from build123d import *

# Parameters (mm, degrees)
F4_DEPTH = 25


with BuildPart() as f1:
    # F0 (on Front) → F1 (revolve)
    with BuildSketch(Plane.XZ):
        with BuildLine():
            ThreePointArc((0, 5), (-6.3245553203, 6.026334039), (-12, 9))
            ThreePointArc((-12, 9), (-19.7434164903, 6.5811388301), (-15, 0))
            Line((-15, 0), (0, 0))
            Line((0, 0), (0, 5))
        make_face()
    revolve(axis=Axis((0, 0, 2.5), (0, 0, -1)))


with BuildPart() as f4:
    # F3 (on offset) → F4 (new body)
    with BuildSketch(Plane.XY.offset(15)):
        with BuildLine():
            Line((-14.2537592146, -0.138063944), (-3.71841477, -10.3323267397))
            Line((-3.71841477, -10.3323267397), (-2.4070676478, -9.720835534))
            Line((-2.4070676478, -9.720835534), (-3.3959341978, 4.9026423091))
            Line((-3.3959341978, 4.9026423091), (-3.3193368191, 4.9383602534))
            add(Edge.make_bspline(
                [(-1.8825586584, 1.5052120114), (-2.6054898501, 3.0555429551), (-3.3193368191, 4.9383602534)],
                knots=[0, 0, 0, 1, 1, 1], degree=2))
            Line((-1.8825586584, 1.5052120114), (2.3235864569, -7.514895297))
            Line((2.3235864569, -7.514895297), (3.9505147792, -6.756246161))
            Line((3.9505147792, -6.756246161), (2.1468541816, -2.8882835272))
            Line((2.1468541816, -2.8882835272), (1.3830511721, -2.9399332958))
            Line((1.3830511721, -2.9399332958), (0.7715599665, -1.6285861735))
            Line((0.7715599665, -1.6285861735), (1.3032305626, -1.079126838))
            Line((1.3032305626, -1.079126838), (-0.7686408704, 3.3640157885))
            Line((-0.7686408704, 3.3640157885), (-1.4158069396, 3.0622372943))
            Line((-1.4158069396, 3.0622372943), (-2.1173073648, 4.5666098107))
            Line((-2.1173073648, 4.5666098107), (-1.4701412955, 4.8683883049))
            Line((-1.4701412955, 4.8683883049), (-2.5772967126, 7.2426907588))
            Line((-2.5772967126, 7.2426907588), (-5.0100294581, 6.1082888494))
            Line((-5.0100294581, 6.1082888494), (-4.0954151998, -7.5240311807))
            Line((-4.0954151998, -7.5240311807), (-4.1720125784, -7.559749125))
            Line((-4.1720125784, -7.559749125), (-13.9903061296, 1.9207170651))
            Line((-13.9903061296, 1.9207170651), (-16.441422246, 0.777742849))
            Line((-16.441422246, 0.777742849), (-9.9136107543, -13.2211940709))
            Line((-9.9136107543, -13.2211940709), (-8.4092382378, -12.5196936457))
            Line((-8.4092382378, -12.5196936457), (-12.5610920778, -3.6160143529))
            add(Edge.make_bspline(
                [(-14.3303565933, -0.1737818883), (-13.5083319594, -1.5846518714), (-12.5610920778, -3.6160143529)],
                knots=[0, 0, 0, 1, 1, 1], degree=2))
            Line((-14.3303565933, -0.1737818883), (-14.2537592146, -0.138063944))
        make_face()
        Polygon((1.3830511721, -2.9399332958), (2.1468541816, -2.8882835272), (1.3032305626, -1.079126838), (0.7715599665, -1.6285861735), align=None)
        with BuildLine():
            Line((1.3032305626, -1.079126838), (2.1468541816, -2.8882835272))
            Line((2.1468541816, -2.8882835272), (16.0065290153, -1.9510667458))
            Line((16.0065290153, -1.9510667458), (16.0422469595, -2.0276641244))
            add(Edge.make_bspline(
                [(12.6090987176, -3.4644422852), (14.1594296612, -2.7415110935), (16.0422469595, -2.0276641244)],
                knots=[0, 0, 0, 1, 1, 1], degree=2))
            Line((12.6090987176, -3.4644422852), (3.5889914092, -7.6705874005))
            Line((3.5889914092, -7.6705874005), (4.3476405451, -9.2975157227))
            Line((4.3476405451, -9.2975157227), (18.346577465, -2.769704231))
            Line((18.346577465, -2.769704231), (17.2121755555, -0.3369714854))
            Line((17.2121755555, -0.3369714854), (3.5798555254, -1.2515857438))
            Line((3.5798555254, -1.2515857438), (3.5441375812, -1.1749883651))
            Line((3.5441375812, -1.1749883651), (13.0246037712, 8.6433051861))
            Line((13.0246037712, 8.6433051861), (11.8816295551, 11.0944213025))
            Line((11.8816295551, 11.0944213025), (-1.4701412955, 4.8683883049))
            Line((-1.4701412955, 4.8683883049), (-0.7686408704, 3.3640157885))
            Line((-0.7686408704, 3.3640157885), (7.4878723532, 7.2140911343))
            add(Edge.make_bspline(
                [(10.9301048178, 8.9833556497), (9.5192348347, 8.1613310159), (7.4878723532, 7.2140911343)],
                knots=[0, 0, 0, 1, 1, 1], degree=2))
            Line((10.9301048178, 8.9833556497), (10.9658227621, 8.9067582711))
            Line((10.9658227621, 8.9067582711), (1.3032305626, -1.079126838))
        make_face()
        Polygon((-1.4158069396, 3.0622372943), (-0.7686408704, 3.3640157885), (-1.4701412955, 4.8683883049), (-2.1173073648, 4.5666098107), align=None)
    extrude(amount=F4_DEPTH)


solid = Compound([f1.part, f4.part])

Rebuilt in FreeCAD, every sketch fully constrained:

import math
import FreeCAD as App
import Part
import Sketcher

V = App.Vector
Q = App.Units.Quantity

doc = App.newDocument("Part")
body = doc.addObject("PartDesign::Body", "Body")

# Sketch on XZ plane
sketch1 = doc.addObject("Sketcher::SketchObject", "Sketch")
body.addObject(sketch1)
sketch1.AttachmentSupport = (doc.XZ_Plane, [""])
sketch1.MapMode = "FlatFace"
sketch1.addGeometry([
    Part.ArcOfCircle(Part.Circle(V(0, 25, 0), V(0, 0, 1), 20), math.radians(-127), math.radians(-90)),
    Part.ArcOfCircle(Part.Circle(V(-15, 5, 0), V(0, 0, 1), 5), math.radians(53), math.radians(270)),
    Part.LineSegment(V(-15, 0, 0), V(0, 0, 0)),
    Part.LineSegment(V(0, 0, 0), V(0, 5, 0)),
], False)
sketch1.addConstraint([
    Sketcher.Constraint("Tangent", 0, 1, 1, 1),
    Sketcher.Constraint("Tangent", 1, 2, 2, 1),
    Sketcher.Constraint("Coincident", 2, 2, 3, 1),
    Sketcher.Constraint("Coincident", 3, 2, 0, 2),
    Sketcher.Constraint("Horizontal", 2),
    Sketcher.Constraint("Vertical", 3),
    Sketcher.Constraint("Coincident", 2, 2, -1, 1),
    Sketcher.Constraint("PointOnObject", 0, 3, -2),
    Sketcher.Constraint("Horizontal", 1, 3, 3, 2),
    Sketcher.Constraint("Radius", 0, Q("20 mm")),
    Sketcher.Constraint("Radius", 1, Q("5 mm")),
])
revolution = doc.addObject("PartDesign::Revolution", "Revolution")
body.addObject(revolution)
revolution.Profile = sketch1
revolution.ReferenceAxis = (sketch1, ["V_Axis"])
revolution.Angle = 360
body2 = doc.addObject("PartDesign::Body", "Body001")

# Sketch on XY plane
sketch2 = doc.addObject("Sketcher::SketchObject", "Sketch001")
body2.addObject(sketch2)
sketch2.AttachmentSupport = (doc.getObject("XY_Plane001"), [""])
sketch2.MapMode = "FlatFace"
sketch2.AttachmentOffset = App.Placement(V(0, 0, 15), App.Rotation())
sketch2.addGeometry([
    Part.LineSegment(V(11.88163, 11.094421, 0), V(-1.470141, 4.868388, 0)),  # 0
    Part.LineSegment(V(-1.470141, 4.868388, 0), V(-2.577297, 7.242691, 0)),  # 1
    Part.LineSegment(V(-2.577297, 7.242691, 0), V(-5.010029, 6.108289, 0)),  # 2
    Part.LineSegment(V(-5.010029, 6.108289, 0), V(-4.095415, -7.524031, 0)),  # 3
    Part.LineSegment(V(-4.095415, -7.524031, 0), V(-4.172013, -7.559749, 0)),  # 4
    Part.LineSegment(V(-4.172013, -7.559749, 0), V(-13.990306, 1.920717, 0)),  # 5
    Part.LineSegment(V(-13.990306, 1.920717, 0), V(-16.441422, 0.777743, 0)),  # 6
    Part.LineSegment(V(-16.441422, 0.777743, 0), V(-9.913611, -13.221194, 0)),  # 7
    Part.LineSegment(V(-9.913611, -13.221194, 0), V(-8.409238, -12.519694, 0)),  # 8
    Part.LineSegment(V(-8.409238, -12.519694, 0), V(-12.561092, -3.616014, 0)),  # 9
    Part.BSplineCurve([V(-14.330357, -0.173782, 0), V(-13.508332, -1.584652, 0), V(-12.561092, -3.616014, 0)], [3, 3], [0, 1], False, 2, [1, 1, 1], False),  # 10
    Part.LineSegment(V(-14.330357, -0.173782, 0), V(-14.253759, -0.138064, 0)),  # 11
    Part.LineSegment(V(-14.253759, -0.138064, 0), V(-3.718415, -10.332327, 0)),  # 12
    Part.LineSegment(V(-3.718415, -10.332327, 0), V(-2.407068, -9.720836, 0)),  # 13
    Part.LineSegment(V(-2.407068, -9.720836, 0), V(-3.395934, 4.902642, 0)),  # 14
    Part.LineSegment(V(-3.395934, 4.902642, 0), V(-3.319337, 4.93836, 0)),  # 15
    Part.BSplineCurve([V(-1.882559, 1.505212, 0), V(-2.60549, 3.055543, 0), V(-3.319337, 4.93836, 0)], [3, 3], [0, 1], False, 2, [1, 1, 1], False),  # 16
    Part.LineSegment(V(-1.882559, 1.505212, 0), V(2.323586, -7.514895, 0)),  # 17
    Part.LineSegment(V(2.323586, -7.514895, 0), V(3.950515, -6.756246, 0)),  # 18
    Part.LineSegment(V(3.950515, -6.756246, 0), V(2.146854, -2.888284, 0)),  # 19
    Part.LineSegment(V(2.146854, -2.888284, 0), V(16.006529, -1.951067, 0)),  # 20
    Part.LineSegment(V(16.006529, -1.951067, 0), V(16.042247, -2.027664, 0)),  # 21
    Part.BSplineCurve([V(12.609099, -3.464442, 0), V(14.15943, -2.741511, 0), V(16.042247, -2.027664, 0)], [3, 3], [0, 1], False, 2, [1, 1, 1], False),  # 22
    Part.LineSegment(V(12.609099, -3.464442, 0), V(3.588991, -7.670587, 0)),  # 23
    Part.LineSegment(V(3.588991, -7.670587, 0), V(4.347641, -9.297516, 0)),  # 24
    Part.LineSegment(V(4.347641, -9.297516, 0), V(18.346577, -2.769704, 0)),  # 25
    Part.LineSegment(V(18.346577, -2.769704, 0), V(17.212176, -0.336971, 0)),  # 26
    Part.LineSegment(V(17.212176, -0.336971, 0), V(3.579856, -1.251586, 0)),  # 27
    Part.LineSegment(V(3.579856, -1.251586, 0), V(3.544138, -1.174988, 0)),  # 28
    Part.LineSegment(V(3.544138, -1.174988, 0), V(13.024604, 8.643305, 0)),  # 29
    Part.LineSegment(V(13.024604, 8.643305, 0), V(11.88163, 11.094421, 0)),  # 30
    Part.LineSegment(V(1.303231, -1.079127, 0), V(-0.768641, 3.364016, 0)),  # 31
    Part.LineSegment(V(-0.768641, 3.364016, 0), V(7.487872, 7.214091, 0)),  # 32
    Part.BSplineCurve([V(10.930105, 8.983356, 0), V(9.519235, 8.161331, 0), V(7.487872, 7.214091, 0)], [3, 3], [0, 1], False, 2, [1, 1, 1], False),  # 33
    Part.LineSegment(V(10.930105, 8.983356, 0), V(10.965823, 8.906758, 0)),  # 34
    Part.LineSegment(V(10.965823, 8.906758, 0), V(1.303231, -1.079127, 0)),  # 35
], False)
sketch2.addConstraint([
    Sketcher.Constraint("Block", 10),
    Sketcher.Constraint("Block", 16),
    Sketcher.Constraint("Block", 22),
    Sketcher.Constraint("Block", 33),
    Sketcher.Constraint("Coincident", 0, 2, 1, 1),
    Sketcher.Constraint("Coincident", 1, 2, 2, 1),
    Sketcher.Constraint("Coincident", 2, 2, 3, 1),
    Sketcher.Constraint("Coincident", 3, 2, 4, 1),
    Sketcher.Constraint("Coincident", 4, 2, 5, 1),
    Sketcher.Constraint("Coincident", 5, 2, 6, 1),
    Sketcher.Constraint("Coincident", 6, 2, 7, 1),
    Sketcher.Constraint("Coincident", 7, 2, 8, 1),
    Sketcher.Constraint("Coincident", 8, 2, 9, 1),
    Sketcher.Constraint("Coincident", 9, 2, 10, 2),
    Sketcher.Constraint("Coincident", 10, 1, 11, 1),
    Sketcher.Constraint("Coincident", 11, 2, 12, 1),
    Sketcher.Constraint("Coincident", 12, 2, 13, 1),
    Sketcher.Constraint("Coincident", 13, 2, 14, 1),
    Sketcher.Constraint("Coincident", 14, 2, 15, 1),
    Sketcher.Constraint("Coincident", 15, 2, 16, 2),
    Sketcher.Constraint("Coincident", 16, 1, 17, 1),
    Sketcher.Constraint("Coincident", 17, 2, 18, 1),
    Sketcher.Constraint("Coincident", 18, 2, 19, 1),
    Sketcher.Constraint("Coincident", 19, 2, 20, 1),
    Sketcher.Constraint("Coincident", 20, 2, 21, 1),
    Sketcher.Constraint("Coincident", 21, 2, 22, 2),
    Sketcher.Constraint("Coincident", 22, 1, 23, 1),
    Sketcher.Constraint("Coincident", 23, 2, 24, 1),
    Sketcher.Constraint("Coincident", 24, 2, 25, 1),
    Sketcher.Constraint("Coincident", 25, 2, 26, 1),
    Sketcher.Constraint("Coincident", 26, 2, 27, 1),
    Sketcher.Constraint("Coincident", 27, 2, 28, 1),
    Sketcher.Constraint("Coincident", 28, 2, 29, 1),
    Sketcher.Constraint("Coincident", 29, 2, 30, 1),
    Sketcher.Constraint("Coincident", 30, 2, 0, 1),
    Sketcher.Constraint("Coincident", 31, 2, 32, 1),
    Sketcher.Constraint("Coincident", 32, 2, 33, 2),
    Sketcher.Constraint("Coincident", 33, 1, 34, 1),
    Sketcher.Constraint("Coincident", 34, 2, 35, 1),
    Sketcher.Constraint("Coincident", 35, 2, 31, 1),
    Sketcher.Constraint("DistanceX", 3, 2, 12, 2, Q("0.377 mm")),
    Sketcher.Constraint("DistanceX", 3, 2, 17, 2, Q("6.419002 mm")),
    Sketcher.Constraint("DistanceX", 19, 2, 27, 2, Q("1.433001 mm")),
    Sketcher.Constraint("DistanceY", 23, 2, 27, 2, Q("6.419002 mm")),
    Sketcher.Constraint("DistanceY", 2, 2, 1, 2, Q("1.134402 mm")),
    Sketcher.Constraint("DistanceY", 0, 2, 2, 2, Q("1.239901 mm")),
    Sketcher.Constraint("DistanceX", 7, 2, 4, 2, Q("5.741598 mm")),
    Sketcher.Constraint("DistanceY", 7, 2, 8, 2, Q("0.7015 mm")),
    Sketcher.Constraint("DistanceX", 4, 2, 17, 2, Q("6.495599 mm")),
    Sketcher.Constraint("DistanceY", 8, 2, 17, 2, Q("5.004798 mm")),
    Sketcher.Constraint("DistanceX", 26, 2, 25, 2, Q("1.134402 mm")),
    Sketcher.Constraint("DistanceY", 23, 2, 28, 2, Q("6.495599 mm")),
    Sketcher.Constraint("DistanceX", 30, 2, 20, 2, Q("4.124899 mm")),
    Sketcher.Constraint("DistanceX", 0, 2, 31, 2, Q("0.7015 mm")),
    Sketcher.Constraint("Distance", 0, Q("14.732049 mm")),
    Sketcher.Constraint("Distance", 8, Q("1.659891 mm")),
    Sketcher.Constraint("Distance", 12, Q("14.66003 mm")),
    Sketcher.Constraint("Distance", 13, Q("1.446911 mm")),
    Sketcher.Constraint("DistanceX", 0, 2, -1, 1, Q("1.470141 mm")),
    Sketcher.Constraint("DistanceY", -1, 1, 0, 2, Q("4.868388 mm")),
    Sketcher.Constraint("DistanceX", 2, 2, -1, 1, Q("5.010029 mm")),
    Sketcher.Constraint("DistanceY", 3, 2, -1, 1, Q("7.524031 mm")),
    Sketcher.Constraint("DistanceY", 4, 2, -1, 1, Q("7.559749 mm")),
    Sketcher.Constraint("DistanceX", 7, 2, -1, 1, Q("9.913611 mm")),
    Sketcher.Constraint("DistanceX", 11, 2, -1, 1, Q("14.253759 mm")),
    Sketcher.Constraint("DistanceX", -1, 1, 20, 2, Q("16.006529 mm")),
    Sketcher.Constraint("DistanceX", -1, 1, 23, 2, Q("3.588991 mm")),
    Sketcher.Constraint("DistanceX", -1, 1, 24, 2, Q("4.347641 mm")),
    Sketcher.Constraint("DistanceY", 26, 2, -1, 1, Q("0.336971 mm")),
    Sketcher.Constraint("DistanceY", 28, 2, -1, 1, Q("1.174988 mm")),
    Sketcher.Constraint("DistanceY", -1, 1, 34, 2, Q("8.906758 mm")),
    Sketcher.Constraint("DistanceX", -1, 1, 35, 2, Q("1.303231 mm")),
    Sketcher.Constraint("DistanceX", 3, 2, 1, 2, Q("1.518118 mm")),
    Sketcher.Constraint("DistanceY", 5, 2, 2, 2, Q("4.187572 mm")),
    Sketcher.Constraint("DistanceX", 5, 2, 1, 2, Q("11.413009 mm")),
    Sketcher.Constraint("DistanceX", 6, 2, 4, 2, Q("12.26941 mm")),
    Sketcher.Constraint("DistanceY", 4, 2, 6, 2, Q("8.337492 mm")),
    Sketcher.Constraint("DistanceY", 7, 2, 5, 2, Q("15.141911 mm")),
    Sketcher.Constraint("DistanceY", 11, 2, 5, 2, Q("2.058781 mm")),
    Sketcher.Constraint("DistanceY", 12, 2, 13, 2, Q("0.611491 mm")),
    Sketcher.Constraint("DistanceY", 14, 2, 1, 2, Q("2.340048 mm")),
    Sketcher.Constraint("DistanceX", 5, 2, 14, 2, Q("10.594372 mm")),
    Sketcher.Constraint("DistanceX", 17, 2, 18, 2, Q("1.626928 mm")),
    Sketcher.Constraint("DistanceY", 17, 2, 18, 2, Q("0.758649 mm")),
    Sketcher.Constraint("DistanceX", 19, 2, 18, 2, Q("1.803661 mm")),
    Sketcher.Constraint("DistanceY", 17, 2, 19, 2, Q("4.626612 mm")),
    Sketcher.Constraint("DistanceY", 18, 2, 20, 2, Q("4.805179 mm")),
    Sketcher.Constraint("DistanceY", 24, 2, 23, 2, Q("1.626928 mm")),
    Sketcher.Constraint("DistanceX", 21, 2, 25, 2, Q("2.304331 mm")),
    Sketcher.Constraint("DistanceY", 25, 2, 21, 2, Q("0.74204 mm")),
    Sketcher.Constraint("DistanceX", 17, 2, 28, 2, Q("1.220551 mm")),
    Sketcher.Constraint("DistanceX", 29, 2, 26, 2, Q("4.187572 mm")),
    Sketcher.Constraint("DistanceY", 20, 2, 29, 2, Q("10.594372 mm")),
    Sketcher.Constraint("DistanceX", 34, 2, 29, 2, Q("2.058781 mm")),
    Sketcher.Constraint("DistanceY", 28, 2, 35, 2, Q("0.095862 mm")),
    Sketcher.Constraint("Distance", 31, Q("4.902465 mm")),
])
pad1 = doc.addObject("PartDesign::Pad", "Pad")
body2.addObject(pad1)
pad1.Profile = sketch2
pad1.Length = 25

doc.recompute()
